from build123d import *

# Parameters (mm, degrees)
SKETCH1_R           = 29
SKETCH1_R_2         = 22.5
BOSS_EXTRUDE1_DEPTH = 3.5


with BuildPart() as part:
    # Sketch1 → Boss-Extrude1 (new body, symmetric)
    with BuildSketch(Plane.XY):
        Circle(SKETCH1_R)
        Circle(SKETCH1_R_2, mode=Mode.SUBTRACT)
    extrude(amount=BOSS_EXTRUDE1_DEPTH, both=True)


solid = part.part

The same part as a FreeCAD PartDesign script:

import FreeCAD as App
import Part
import Sketcher
from FreeCAD import Vector
Q = App.Units.Quantity

doc = App.newDocument("Part")
params = doc.addObject("Spreadsheet::Sheet", "Params")
for row, (alias, value) in enumerate([
    ("sketch1_diameter", "58 mm"),
    ("sketch1_diameter2", "45 mm"),
    ("pad1_length", "7 mm"),
], start=1):
    params.set(f"A{row}", alias)
    params.set(f"B{row}", "=" + value)
    params.setAlias(f"B{row}", alias)

body = doc.addObject("PartDesign::Body", "Body")

sketch1 = doc.addObject("Sketcher::SketchObject", "Sketch")
body.addObject(sketch1)
sketch1.AttachmentSupport = (doc.XY_Plane, [""])
sketch1.MapMode = "FlatFace"
sketch1.addGeometry([
    Part.Circle(Vector(0, 0, 0), Vector(0, 0, 1), 29),
    Part.Circle(Vector(0, 0, 0), Vector(0, 0, 1), 22),
], False)
sketch1.addConstraint([
    Sketcher.Constraint("Coincident", 0, 3, -1, 1),
    Sketcher.Constraint("Coincident", 1, 3, -1, 1),
    Sketcher.Constraint("Diameter", 0, Q("58 mm")),
    Sketcher.Constraint("Diameter", 1, Q("45 mm")),
])
sketch1.setExpression("Constraints[2]", "Params.sketch1_diameter")
sketch1.setExpression("Constraints[3]", "Params.sketch1_diameter2")
pad1 = doc.addObject("PartDesign::Pad", "Pad")
body.addObject(pad1)
pad1.Profile = sketch1
pad1.setExpression("Length", "Params.pad1_length")
pad1.Midplane = True

doc.recompute()
